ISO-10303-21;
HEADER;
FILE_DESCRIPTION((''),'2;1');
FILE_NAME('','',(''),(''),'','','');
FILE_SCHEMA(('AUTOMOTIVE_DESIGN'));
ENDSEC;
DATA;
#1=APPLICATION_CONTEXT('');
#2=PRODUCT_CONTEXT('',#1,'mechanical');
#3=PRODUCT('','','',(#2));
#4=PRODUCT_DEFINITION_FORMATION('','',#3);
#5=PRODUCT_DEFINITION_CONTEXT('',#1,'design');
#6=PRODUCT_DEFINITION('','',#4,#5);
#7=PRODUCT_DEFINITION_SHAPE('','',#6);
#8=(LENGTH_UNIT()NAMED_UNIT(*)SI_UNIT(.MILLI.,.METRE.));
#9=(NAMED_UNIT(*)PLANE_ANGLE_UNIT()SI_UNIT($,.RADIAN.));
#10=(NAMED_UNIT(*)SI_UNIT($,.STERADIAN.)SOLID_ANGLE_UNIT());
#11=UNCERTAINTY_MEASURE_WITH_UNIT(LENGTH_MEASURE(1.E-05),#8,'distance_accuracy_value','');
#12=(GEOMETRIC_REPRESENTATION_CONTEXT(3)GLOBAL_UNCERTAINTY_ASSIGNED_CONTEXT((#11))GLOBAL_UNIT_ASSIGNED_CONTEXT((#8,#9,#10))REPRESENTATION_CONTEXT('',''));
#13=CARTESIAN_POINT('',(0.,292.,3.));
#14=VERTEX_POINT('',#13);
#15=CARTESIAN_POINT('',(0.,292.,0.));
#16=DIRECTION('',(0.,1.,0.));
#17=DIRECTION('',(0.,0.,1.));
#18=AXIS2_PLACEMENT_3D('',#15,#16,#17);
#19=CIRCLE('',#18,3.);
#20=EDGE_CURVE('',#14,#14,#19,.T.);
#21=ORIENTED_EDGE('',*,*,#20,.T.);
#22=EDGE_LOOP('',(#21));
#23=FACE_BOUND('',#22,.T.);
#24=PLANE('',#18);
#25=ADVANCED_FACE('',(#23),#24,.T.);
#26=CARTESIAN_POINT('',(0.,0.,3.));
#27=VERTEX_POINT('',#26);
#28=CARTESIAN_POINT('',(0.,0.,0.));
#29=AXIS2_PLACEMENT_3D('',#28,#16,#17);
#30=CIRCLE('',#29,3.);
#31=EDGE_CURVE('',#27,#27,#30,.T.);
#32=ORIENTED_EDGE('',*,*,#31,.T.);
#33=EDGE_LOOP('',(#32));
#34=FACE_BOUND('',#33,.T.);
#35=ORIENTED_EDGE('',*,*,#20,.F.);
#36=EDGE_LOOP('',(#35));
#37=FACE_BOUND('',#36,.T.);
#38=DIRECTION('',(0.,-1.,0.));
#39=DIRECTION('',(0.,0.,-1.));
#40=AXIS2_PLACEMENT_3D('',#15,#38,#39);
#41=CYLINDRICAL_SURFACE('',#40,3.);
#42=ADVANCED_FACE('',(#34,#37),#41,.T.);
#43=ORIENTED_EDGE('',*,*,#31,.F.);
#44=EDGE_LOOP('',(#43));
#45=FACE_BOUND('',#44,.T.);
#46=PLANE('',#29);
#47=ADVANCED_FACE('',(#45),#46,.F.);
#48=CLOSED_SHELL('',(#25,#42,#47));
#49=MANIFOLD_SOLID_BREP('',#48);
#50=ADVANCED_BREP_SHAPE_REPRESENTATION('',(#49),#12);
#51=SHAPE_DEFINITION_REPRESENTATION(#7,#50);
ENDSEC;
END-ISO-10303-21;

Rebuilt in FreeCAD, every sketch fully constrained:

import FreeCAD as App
import Part
import Sketcher

V = App.Vector
Q = App.Units.Quantity

doc = App.newDocument("Part")
body = doc.addObject("PartDesign::Body", "Body")

# Sketch on XZ plane
sketch1 = body.newObject("Sketcher::SketchObject", "Sketch")
sketch1.AttachmentSupport = (doc.getObject("XZ_Plane"), [""])
sketch1.MapMode = "FlatFace"
sketch1.addGeometry(Part.Circle(V(0, 0, 0), V(0, 0, 1), 3), False)
sketch1.addConstraint([
    Sketcher.Constraint("Coincident", 0, 3, -1, 1),
    Sketcher.Constraint("Diameter", 0, Q("6 mm")),
])
pad1 = body.newObject("PartDesign::Pad", "Pad")
pad1.Profile = sketch1
pad1.Length = 292
pad1.Reversed = True

doc.recompute()
